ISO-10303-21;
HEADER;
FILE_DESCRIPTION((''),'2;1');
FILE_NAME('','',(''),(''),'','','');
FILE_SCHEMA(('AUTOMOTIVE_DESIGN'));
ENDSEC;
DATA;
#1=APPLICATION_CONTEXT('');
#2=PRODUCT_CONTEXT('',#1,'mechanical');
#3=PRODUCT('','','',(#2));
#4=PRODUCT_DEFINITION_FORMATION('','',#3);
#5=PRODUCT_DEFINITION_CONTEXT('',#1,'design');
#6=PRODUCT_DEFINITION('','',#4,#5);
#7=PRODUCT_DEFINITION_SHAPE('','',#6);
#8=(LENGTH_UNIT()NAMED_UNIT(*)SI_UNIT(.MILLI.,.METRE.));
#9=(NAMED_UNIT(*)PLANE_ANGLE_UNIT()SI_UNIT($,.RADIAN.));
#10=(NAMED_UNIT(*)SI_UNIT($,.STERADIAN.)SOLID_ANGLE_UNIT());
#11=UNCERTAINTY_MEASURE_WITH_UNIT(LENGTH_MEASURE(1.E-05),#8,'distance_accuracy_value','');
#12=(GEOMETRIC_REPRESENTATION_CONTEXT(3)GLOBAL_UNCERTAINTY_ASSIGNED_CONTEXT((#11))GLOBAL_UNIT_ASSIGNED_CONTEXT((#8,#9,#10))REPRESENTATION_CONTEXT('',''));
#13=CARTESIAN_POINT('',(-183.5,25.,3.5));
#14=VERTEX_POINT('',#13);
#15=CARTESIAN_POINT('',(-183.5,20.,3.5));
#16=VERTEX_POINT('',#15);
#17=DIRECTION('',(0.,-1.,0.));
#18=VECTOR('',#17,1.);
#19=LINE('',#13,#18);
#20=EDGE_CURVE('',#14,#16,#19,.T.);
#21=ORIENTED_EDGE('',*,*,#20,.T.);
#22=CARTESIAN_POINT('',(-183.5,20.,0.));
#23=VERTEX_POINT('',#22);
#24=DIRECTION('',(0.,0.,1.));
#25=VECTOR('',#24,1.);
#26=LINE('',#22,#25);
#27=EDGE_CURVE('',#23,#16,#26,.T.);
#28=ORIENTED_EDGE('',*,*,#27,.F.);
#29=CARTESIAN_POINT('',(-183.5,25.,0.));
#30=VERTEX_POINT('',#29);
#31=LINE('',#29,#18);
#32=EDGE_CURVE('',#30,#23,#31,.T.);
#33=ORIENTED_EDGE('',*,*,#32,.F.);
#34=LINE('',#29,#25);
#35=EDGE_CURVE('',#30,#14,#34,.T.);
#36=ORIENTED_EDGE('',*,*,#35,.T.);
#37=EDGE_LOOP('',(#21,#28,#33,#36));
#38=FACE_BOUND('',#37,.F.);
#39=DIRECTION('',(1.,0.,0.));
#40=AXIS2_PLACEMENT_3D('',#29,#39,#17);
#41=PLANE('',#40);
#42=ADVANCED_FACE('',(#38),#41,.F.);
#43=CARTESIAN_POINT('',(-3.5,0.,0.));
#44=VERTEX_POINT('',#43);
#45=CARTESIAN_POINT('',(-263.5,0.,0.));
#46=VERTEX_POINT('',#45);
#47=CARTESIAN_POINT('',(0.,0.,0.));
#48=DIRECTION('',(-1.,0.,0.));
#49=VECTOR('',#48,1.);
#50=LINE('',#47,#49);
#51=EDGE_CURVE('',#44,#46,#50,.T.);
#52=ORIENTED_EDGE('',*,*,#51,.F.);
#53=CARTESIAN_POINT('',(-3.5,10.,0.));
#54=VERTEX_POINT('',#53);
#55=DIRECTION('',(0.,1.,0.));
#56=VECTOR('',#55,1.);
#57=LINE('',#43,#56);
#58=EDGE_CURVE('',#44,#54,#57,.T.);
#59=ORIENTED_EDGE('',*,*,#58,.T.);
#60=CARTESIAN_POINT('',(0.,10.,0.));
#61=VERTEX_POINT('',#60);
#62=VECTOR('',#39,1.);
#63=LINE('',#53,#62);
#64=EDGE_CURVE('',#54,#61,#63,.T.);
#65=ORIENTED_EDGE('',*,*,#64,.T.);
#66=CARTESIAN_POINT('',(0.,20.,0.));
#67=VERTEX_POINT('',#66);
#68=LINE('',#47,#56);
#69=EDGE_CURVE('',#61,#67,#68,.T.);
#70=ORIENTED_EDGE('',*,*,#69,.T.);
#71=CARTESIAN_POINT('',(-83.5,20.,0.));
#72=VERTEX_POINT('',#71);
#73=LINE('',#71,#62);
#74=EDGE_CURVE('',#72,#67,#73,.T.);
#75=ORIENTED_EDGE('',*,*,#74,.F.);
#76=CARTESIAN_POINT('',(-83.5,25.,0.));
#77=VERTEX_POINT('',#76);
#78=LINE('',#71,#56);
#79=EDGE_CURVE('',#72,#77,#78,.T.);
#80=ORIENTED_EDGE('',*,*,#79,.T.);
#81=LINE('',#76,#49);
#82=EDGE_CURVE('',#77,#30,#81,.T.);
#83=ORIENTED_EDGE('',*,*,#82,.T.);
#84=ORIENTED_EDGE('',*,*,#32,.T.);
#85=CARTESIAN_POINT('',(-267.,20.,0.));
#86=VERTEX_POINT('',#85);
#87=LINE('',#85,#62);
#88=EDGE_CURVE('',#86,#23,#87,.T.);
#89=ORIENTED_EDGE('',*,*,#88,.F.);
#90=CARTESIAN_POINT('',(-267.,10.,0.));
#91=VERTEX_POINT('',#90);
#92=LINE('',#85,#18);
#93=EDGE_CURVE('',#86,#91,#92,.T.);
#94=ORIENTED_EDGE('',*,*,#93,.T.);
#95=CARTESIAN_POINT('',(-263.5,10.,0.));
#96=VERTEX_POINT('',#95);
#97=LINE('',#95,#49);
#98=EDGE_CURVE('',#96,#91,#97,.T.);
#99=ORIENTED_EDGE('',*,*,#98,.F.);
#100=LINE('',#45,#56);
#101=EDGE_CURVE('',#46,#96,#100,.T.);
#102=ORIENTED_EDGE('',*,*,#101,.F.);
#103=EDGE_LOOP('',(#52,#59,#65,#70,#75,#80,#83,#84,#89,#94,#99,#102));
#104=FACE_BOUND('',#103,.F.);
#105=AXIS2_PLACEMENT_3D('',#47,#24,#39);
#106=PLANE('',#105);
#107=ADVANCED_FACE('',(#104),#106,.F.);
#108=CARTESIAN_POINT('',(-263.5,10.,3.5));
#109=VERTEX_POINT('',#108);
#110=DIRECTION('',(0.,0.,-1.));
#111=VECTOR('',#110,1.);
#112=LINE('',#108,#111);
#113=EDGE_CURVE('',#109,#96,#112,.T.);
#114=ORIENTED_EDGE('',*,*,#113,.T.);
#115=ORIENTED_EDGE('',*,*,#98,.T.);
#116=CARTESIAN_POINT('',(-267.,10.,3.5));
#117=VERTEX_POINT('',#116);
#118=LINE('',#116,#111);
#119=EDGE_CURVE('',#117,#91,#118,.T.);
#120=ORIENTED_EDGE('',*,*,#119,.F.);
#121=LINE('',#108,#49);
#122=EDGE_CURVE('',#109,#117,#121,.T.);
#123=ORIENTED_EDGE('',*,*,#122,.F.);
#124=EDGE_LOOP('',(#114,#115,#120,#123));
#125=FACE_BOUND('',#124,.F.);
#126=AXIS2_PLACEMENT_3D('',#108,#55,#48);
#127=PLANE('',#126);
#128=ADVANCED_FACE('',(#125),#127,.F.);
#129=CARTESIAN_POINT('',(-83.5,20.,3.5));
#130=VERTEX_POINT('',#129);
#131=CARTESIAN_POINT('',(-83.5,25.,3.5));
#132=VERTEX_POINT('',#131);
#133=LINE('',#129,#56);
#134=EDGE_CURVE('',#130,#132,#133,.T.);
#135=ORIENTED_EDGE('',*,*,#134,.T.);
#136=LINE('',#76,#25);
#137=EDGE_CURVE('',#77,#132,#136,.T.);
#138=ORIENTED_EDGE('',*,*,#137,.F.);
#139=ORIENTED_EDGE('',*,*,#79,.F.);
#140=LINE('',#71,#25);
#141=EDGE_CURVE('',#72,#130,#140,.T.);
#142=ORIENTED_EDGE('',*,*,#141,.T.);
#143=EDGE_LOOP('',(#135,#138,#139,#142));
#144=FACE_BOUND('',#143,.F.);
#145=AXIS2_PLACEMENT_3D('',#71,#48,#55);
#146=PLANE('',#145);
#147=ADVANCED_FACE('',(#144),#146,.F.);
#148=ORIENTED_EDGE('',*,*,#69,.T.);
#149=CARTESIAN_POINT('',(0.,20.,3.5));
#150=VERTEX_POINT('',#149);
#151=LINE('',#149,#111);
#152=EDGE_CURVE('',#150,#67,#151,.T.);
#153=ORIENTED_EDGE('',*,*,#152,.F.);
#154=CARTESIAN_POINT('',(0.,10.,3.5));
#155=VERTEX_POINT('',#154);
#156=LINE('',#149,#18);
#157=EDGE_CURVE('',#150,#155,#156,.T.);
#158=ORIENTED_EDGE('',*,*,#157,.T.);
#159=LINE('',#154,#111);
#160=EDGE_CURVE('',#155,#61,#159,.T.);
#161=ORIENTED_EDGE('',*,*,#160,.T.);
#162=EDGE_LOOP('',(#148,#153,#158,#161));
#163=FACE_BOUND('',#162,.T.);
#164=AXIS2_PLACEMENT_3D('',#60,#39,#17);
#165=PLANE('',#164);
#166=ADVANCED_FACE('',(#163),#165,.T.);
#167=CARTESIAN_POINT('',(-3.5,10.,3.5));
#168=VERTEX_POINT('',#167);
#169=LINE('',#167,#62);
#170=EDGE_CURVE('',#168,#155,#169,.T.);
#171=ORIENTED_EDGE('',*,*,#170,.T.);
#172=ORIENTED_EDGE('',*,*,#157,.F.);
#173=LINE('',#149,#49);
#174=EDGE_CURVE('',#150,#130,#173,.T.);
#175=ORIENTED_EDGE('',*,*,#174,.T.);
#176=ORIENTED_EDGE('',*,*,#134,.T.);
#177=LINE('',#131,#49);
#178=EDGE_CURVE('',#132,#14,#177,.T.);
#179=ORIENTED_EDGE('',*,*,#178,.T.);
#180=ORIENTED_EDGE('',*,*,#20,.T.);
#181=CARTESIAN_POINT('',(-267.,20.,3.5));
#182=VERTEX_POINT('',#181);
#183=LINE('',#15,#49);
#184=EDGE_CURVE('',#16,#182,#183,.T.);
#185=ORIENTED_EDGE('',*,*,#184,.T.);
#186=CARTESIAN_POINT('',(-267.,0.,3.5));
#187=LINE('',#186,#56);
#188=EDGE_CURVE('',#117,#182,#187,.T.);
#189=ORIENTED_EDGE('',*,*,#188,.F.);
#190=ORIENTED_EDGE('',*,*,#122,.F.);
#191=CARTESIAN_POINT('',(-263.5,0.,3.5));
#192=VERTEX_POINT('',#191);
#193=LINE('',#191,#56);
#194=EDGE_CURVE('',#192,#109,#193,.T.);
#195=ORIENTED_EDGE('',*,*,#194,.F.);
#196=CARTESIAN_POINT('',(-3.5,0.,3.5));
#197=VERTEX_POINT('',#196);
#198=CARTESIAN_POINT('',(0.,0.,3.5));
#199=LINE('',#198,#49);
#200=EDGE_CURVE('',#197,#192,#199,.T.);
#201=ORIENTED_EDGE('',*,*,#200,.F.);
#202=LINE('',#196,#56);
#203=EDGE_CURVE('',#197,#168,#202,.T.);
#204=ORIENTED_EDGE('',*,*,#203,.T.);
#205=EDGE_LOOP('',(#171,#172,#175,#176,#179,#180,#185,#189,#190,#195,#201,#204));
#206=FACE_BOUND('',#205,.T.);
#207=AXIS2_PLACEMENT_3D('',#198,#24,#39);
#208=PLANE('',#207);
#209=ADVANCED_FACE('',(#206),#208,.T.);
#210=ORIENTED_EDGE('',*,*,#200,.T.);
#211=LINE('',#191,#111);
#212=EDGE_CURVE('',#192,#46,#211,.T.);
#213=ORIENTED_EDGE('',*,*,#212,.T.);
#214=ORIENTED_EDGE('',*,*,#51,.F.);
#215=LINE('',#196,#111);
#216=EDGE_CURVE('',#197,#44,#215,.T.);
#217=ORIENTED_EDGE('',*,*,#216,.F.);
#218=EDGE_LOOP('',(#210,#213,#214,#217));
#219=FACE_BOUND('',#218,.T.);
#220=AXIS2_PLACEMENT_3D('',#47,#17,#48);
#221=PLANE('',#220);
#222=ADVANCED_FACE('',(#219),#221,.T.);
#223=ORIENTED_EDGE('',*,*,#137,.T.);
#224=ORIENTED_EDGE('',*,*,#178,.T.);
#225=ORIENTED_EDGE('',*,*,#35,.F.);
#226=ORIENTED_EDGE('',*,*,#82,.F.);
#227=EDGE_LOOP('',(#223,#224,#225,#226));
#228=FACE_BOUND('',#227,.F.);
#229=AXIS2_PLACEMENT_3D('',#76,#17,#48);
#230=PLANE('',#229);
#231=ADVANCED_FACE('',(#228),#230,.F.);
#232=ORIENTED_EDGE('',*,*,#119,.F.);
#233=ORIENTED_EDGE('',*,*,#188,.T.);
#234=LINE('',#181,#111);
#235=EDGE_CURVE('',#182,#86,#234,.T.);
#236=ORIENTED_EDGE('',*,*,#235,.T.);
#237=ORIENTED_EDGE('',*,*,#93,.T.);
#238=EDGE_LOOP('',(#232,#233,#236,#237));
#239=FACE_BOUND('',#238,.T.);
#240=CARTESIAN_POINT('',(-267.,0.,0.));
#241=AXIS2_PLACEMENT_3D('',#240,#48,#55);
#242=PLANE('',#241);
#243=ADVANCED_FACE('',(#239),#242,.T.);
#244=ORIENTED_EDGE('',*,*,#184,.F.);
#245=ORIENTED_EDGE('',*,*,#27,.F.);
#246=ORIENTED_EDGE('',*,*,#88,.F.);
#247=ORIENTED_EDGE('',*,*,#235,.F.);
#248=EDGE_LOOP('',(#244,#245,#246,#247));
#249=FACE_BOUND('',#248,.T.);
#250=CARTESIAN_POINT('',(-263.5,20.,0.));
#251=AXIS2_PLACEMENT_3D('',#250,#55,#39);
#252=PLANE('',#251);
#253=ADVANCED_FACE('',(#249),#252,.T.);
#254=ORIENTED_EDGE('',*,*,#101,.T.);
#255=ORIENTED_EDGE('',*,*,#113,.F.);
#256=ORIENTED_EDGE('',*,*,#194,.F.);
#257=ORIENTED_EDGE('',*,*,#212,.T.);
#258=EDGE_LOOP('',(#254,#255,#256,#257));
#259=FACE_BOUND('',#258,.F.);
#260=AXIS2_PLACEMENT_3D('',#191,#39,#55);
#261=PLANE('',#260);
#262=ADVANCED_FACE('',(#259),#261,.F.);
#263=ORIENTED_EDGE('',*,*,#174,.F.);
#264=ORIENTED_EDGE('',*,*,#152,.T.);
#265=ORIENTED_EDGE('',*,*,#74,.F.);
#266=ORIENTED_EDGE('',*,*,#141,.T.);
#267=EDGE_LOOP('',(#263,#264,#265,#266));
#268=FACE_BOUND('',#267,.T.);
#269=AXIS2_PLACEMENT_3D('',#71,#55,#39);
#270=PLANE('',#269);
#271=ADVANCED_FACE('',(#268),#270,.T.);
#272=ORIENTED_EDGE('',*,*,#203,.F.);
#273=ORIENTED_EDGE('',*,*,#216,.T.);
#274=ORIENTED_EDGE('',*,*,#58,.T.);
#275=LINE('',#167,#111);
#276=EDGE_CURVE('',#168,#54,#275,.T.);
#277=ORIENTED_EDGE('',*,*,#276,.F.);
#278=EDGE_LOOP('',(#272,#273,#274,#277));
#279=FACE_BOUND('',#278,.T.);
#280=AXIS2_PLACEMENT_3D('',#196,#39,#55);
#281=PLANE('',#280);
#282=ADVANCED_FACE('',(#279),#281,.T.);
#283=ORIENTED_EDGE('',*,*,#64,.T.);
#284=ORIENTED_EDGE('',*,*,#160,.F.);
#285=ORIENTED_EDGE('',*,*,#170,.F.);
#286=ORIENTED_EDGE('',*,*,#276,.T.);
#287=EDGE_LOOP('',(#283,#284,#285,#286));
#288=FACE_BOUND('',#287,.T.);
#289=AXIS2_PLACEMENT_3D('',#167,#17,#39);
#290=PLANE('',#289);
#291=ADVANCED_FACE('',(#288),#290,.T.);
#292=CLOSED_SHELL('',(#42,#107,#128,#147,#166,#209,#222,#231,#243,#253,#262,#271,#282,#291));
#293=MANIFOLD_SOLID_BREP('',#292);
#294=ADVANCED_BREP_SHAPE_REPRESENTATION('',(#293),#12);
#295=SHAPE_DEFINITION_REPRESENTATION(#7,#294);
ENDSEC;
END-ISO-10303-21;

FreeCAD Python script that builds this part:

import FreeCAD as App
import Part
import Sketcher

V = App.Vector

doc = App.newDocument("Part")
body = doc.addObject("PartDesign::Body", "Body")

sketch1 = body.newObject("Sketcher::SketchObject", "Sketch")
sketch1.AttachmentSupport = (doc.getObject("XY_Plane"), [""])
sketch1.MapMode = "FlatFace"
sketch1.addGeometry([
    Part.LineSegment(V(-267, 0, 0), V(0, 0, 0)),
    Part.LineSegment(V(0, 0, 0), V(0, 10, 0)),
    Part.LineSegment(V(0, 10, 0), V(-3.5, 10, 0)),
    Part.LineSegment(V(-3.5, 10, 0), V(-3.5, 20, 0)),
    Part.LineSegment(V(-3.5, 20, 0), V(-83.5, 20, 0)),
    Part.LineSegment(V(-83.5, 20, 0), V(-83.5, 25, 0)),
    Part.LineSegment(V(-83.5, 25, 0), V(-183.5, 25, 0)),
    Part.LineSegment(V(-183.5, 25, 0), V(-183.5, 20, 0)),
    Part.LineSegment(V(-183.5, 20, 0), V(-263.5, 20, 0)),
    Part.LineSegment(V(-263.5, 20, 0), V(-263.5, 10, 0)),
    Part.LineSegment(V(-263.5, 10, 0), V(-267, 10, 0)),
    Part.LineSegment(V(-267, 10, 0), V(-267, 0, 0)),
], False)
sketch1.addConstraint([
    Sketcher.Constraint("Coincident", 0, 2, 1, 1),
    Sketcher.Constraint("Coincident", 1, 2, 2, 1),
    Sketcher.Constraint("Coincident", 2, 2, 3, 1),
    Sketcher.Constraint("Coincident", 3, 2, 4, 1),
    Sketcher.Constraint("Coincident", 4, 2, 5, 1),
    Sketcher.Constraint("Coincident", 5, 2, 6, 1),
    Sketcher.Constraint("Coincident", 6, 2, 7, 1),
    Sketcher.Constraint("Coincident", 7, 2, 8, 1),
    Sketcher.Constraint("Coincident", 8, 2, 9, 1),
    Sketcher.Constraint("Coincident", 9, 2, 10, 1),
    Sketcher.Constraint("Coincident", 10, 2, 11, 1),
    Sketcher.Constraint("Coincident", 11, 2, 0, 1),
    Sketcher.Constraint("Horizontal", 0),
    Sketcher.Constraint("Vertical", 1),
    Sketcher.Constraint("Horizontal", 2),
    Sketcher.Constraint("Vertical", 3),
    Sketcher.Constraint("Horizontal", 4),
    Sketcher.Constraint("Vertical", 5),
    Sketcher.Constraint("Horizontal", 6),
    Sketcher.Constraint("Vertical", 7),
    Sketcher.Constraint("Horizontal", 8),
    Sketcher.Constraint("Vertical", 9),
    Sketcher.Constraint("Horizontal", 10),
    Sketcher.Constraint("Vertical", 11),
    Sketcher.Constraint("Coincident", 0, 2, -1, 1),
    Sketcher.Constraint("Horizontal", 4, 2, 7, 2),
    Sketcher.Constraint("Horizontal", 2, 2, 9, 2),
    Sketcher.Constraint("Equal", 4, 8),
    Sketcher.Constraint("Equal", 2, 10),
    Sketcher.Constraint("Equal", 1, 3),
    Sketcher.Constraint("DistanceX", 0, 1, 0, 2, 267.0),
    Sketcher.Constraint("DistanceX", 4, 2, 4, 1, 80.0),
    Sketcher.Constraint("DistanceX", 6, 2, 6, 1, 100.0),
    Sketcher.Constraint("DistanceY", 1, 1, 1, 2, 10.0),
    Sketcher.Constraint("DistanceY", 5, 1, 5, 2, 5.0),
])
pad1 = body.newObject("PartDesign::Pad", "Pad")
pad1.Profile = sketch1
pad1.Length = 3.5

sketch2 = body.newObject("Sketcher::SketchObject", "Sketch001")
sketch2.AttachmentSupport = (doc.getObject("XY_Plane"), [""])
sketch2.MapMode = "FlatFace"
sketch2.AttachmentOffset = App.Placement(V(0, 0, 3.5), App.Rotation())
sketch2.addGeometry([
    Part.LineSegment(V(-3.5, 10, 0), V(0, 10, 0)),
    Part.LineSegment(V(0, 10, 0), V(0, 20, 0)),
    Part.LineSegment(V(0, 20, 0), V(-3.5, 20, 0)),
    Part.LineSegment(V(-3.5, 20, 0), V(-3.5, 10, 0)),
    Part.LineSegment(V(-263.5, 10, 0), V(-263.5, 20, 0)),
    Part.LineSegment(V(-263.5, 20, 0), V(-267, 20, 0)),
    Part.LineSegment(V(-267, 20, 0), V(-267, 10, 0)),
    Part.LineSegment(V(-267, 10, 0), V(-263.5, 10, 0)),
], False)
sketch2.addConstraint([
    Sketcher.Constraint("Coincident", 0, 2, 1, 1),
    Sketcher.Constraint("Coincident", 1, 2, 2, 1),
    Sketcher.Constraint("Coincident", 2, 2, 3, 1),
    Sketcher.Constraint("Coincident", 3, 2, 0, 1),
    Sketcher.Constraint("Coincident", 4, 2, 5, 1),
    Sketcher.Constraint("Coincident", 5, 2, 6, 1),
    Sketcher.Constraint("Coincident", 6, 2, 7, 1),
    Sketcher.Constraint("Coincident", 7, 2, 4, 1),
    Sketcher.Constraint("Horizontal", 0),
    Sketcher.Constraint("Vertical", 1),
    Sketcher.Constraint("Horizontal", 2),
    Sketcher.Constraint("Vertical", 3),
    Sketcher.Constraint("Vertical", 4),
    Sketcher.Constraint("Horizontal", 5),
    Sketcher.Constraint("Vertical", 6),
    Sketcher.Constraint("Horizontal", 7),
    Sketcher.Constraint("PointOnObject", 0, 2, -2),
    Sketcher.Constraint("Horizontal", 2, 2, 4, 2),
    Sketcher.Constraint("Horizontal", 3, 2, 6, 2),
    Sketcher.Constraint("Equal", 2, 5),
    Sketcher.Constraint("DistanceY", 1, 1, 1, 2, 10.0),
    Sketcher.Constraint("DistanceX", 0, 1, 0, 2, 3.5),
    Sketcher.Constraint("DistanceY", -1, 1, 0, 2, 10.0),
    Sketcher.Constraint("DistanceX", 5, 2, -1, 1, 267.0),
])
pad2 = body.newObject("PartDesign::Pad", "Pad001")
pad2.Profile = sketch2
pad2.Length = 3.5
pad2.Reversed = True

sketch3 = body.newObject("Sketcher::SketchObject", "Sketch002")
sketch3.AttachmentSupport = (doc.getObject("XY_Plane"), [""])
sketch3.MapMode = "FlatFace"
sketch3.AttachmentOffset = App.Placement(V(0, 0, 3.5), App.Rotation())
sketch3.addGeometry([
    Part.LineSegment(V(-267, 10, 0), V(-267, 0, 0)),
    Part.LineSegment(V(-267, 0, 0), V(-263.5, 0, 0)),
    Part.LineSegment(V(-263.5, 0, 0), V(-263.5, 10, 0)),
    Part.LineSegment(V(-263.5, 10, 0), V(-267, 10, 0)),
    Part.LineSegment(V(-3.5, 0, 0), V(0, 0, 0)),
    Part.LineSegment(V(0, 0, 0), V(0, 10, 0)),
    Part.LineSegment(V(0, 10, 0), V(-3.5, 10, 0)),
    Part.LineSegment(V(-3.5, 10, 0), V(-3.5, 0, 0)),
], False)
sketch3.addConstraint([
    Sketcher.Constraint("Coincident", 0, 2, 1, 1),
    Sketcher.Constraint("Coincident", 1, 2, 2, 1),
    Sketcher.Constraint("Coincident", 2, 2, 3, 1),
    Sketcher.Constraint("Coincident", 3, 2, 0, 1),
    Sketcher.Constraint("Coincident", 4, 2, 5, 1),
    Sketcher.Constraint("Coincident", 5, 2, 6, 1),
    Sketcher.Constraint("Coincident", 6, 2, 7, 1),
    Sketcher.Constraint("Coincident", 7, 2, 4, 1),
    Sketcher.Constraint("Vertical", 0),
    Sketcher.Constraint("Horizontal", 1),
    Sketcher.Constraint("Vertical", 2),
    Sketcher.Constraint("Horizontal", 3),
    Sketcher.Constraint("Horizontal", 4),
    Sketcher.Constraint("Vertical", 5),
    Sketcher.Constraint("Horizontal", 6),
    Sketcher.Constraint("Vertical", 7),
    Sketcher.Constraint("Coincident", 4, 2, -1, 1),
    Sketcher.Constraint("PointOnObject", 0, 2, -1),
    Sketcher.Constraint("Horizontal", 3, 2, 5, 2),
    Sketcher.Constraint("Equal", 3, 4),
    Sketcher.Constraint("DistanceY", 0, 2, 0, 1, 10.0),
    Sketcher.Constraint("DistanceX", 1, 1, 1, 2, 3.5),
    Sketcher.Constraint("DistanceX", 0, 2, -1, 1, 267.0),
])
pocket1 = body.newObject("PartDesign::Pocket", "Pocket")
pocket1.Profile = sketch3
pocket1.Length = 3.5

doc.recompute()
